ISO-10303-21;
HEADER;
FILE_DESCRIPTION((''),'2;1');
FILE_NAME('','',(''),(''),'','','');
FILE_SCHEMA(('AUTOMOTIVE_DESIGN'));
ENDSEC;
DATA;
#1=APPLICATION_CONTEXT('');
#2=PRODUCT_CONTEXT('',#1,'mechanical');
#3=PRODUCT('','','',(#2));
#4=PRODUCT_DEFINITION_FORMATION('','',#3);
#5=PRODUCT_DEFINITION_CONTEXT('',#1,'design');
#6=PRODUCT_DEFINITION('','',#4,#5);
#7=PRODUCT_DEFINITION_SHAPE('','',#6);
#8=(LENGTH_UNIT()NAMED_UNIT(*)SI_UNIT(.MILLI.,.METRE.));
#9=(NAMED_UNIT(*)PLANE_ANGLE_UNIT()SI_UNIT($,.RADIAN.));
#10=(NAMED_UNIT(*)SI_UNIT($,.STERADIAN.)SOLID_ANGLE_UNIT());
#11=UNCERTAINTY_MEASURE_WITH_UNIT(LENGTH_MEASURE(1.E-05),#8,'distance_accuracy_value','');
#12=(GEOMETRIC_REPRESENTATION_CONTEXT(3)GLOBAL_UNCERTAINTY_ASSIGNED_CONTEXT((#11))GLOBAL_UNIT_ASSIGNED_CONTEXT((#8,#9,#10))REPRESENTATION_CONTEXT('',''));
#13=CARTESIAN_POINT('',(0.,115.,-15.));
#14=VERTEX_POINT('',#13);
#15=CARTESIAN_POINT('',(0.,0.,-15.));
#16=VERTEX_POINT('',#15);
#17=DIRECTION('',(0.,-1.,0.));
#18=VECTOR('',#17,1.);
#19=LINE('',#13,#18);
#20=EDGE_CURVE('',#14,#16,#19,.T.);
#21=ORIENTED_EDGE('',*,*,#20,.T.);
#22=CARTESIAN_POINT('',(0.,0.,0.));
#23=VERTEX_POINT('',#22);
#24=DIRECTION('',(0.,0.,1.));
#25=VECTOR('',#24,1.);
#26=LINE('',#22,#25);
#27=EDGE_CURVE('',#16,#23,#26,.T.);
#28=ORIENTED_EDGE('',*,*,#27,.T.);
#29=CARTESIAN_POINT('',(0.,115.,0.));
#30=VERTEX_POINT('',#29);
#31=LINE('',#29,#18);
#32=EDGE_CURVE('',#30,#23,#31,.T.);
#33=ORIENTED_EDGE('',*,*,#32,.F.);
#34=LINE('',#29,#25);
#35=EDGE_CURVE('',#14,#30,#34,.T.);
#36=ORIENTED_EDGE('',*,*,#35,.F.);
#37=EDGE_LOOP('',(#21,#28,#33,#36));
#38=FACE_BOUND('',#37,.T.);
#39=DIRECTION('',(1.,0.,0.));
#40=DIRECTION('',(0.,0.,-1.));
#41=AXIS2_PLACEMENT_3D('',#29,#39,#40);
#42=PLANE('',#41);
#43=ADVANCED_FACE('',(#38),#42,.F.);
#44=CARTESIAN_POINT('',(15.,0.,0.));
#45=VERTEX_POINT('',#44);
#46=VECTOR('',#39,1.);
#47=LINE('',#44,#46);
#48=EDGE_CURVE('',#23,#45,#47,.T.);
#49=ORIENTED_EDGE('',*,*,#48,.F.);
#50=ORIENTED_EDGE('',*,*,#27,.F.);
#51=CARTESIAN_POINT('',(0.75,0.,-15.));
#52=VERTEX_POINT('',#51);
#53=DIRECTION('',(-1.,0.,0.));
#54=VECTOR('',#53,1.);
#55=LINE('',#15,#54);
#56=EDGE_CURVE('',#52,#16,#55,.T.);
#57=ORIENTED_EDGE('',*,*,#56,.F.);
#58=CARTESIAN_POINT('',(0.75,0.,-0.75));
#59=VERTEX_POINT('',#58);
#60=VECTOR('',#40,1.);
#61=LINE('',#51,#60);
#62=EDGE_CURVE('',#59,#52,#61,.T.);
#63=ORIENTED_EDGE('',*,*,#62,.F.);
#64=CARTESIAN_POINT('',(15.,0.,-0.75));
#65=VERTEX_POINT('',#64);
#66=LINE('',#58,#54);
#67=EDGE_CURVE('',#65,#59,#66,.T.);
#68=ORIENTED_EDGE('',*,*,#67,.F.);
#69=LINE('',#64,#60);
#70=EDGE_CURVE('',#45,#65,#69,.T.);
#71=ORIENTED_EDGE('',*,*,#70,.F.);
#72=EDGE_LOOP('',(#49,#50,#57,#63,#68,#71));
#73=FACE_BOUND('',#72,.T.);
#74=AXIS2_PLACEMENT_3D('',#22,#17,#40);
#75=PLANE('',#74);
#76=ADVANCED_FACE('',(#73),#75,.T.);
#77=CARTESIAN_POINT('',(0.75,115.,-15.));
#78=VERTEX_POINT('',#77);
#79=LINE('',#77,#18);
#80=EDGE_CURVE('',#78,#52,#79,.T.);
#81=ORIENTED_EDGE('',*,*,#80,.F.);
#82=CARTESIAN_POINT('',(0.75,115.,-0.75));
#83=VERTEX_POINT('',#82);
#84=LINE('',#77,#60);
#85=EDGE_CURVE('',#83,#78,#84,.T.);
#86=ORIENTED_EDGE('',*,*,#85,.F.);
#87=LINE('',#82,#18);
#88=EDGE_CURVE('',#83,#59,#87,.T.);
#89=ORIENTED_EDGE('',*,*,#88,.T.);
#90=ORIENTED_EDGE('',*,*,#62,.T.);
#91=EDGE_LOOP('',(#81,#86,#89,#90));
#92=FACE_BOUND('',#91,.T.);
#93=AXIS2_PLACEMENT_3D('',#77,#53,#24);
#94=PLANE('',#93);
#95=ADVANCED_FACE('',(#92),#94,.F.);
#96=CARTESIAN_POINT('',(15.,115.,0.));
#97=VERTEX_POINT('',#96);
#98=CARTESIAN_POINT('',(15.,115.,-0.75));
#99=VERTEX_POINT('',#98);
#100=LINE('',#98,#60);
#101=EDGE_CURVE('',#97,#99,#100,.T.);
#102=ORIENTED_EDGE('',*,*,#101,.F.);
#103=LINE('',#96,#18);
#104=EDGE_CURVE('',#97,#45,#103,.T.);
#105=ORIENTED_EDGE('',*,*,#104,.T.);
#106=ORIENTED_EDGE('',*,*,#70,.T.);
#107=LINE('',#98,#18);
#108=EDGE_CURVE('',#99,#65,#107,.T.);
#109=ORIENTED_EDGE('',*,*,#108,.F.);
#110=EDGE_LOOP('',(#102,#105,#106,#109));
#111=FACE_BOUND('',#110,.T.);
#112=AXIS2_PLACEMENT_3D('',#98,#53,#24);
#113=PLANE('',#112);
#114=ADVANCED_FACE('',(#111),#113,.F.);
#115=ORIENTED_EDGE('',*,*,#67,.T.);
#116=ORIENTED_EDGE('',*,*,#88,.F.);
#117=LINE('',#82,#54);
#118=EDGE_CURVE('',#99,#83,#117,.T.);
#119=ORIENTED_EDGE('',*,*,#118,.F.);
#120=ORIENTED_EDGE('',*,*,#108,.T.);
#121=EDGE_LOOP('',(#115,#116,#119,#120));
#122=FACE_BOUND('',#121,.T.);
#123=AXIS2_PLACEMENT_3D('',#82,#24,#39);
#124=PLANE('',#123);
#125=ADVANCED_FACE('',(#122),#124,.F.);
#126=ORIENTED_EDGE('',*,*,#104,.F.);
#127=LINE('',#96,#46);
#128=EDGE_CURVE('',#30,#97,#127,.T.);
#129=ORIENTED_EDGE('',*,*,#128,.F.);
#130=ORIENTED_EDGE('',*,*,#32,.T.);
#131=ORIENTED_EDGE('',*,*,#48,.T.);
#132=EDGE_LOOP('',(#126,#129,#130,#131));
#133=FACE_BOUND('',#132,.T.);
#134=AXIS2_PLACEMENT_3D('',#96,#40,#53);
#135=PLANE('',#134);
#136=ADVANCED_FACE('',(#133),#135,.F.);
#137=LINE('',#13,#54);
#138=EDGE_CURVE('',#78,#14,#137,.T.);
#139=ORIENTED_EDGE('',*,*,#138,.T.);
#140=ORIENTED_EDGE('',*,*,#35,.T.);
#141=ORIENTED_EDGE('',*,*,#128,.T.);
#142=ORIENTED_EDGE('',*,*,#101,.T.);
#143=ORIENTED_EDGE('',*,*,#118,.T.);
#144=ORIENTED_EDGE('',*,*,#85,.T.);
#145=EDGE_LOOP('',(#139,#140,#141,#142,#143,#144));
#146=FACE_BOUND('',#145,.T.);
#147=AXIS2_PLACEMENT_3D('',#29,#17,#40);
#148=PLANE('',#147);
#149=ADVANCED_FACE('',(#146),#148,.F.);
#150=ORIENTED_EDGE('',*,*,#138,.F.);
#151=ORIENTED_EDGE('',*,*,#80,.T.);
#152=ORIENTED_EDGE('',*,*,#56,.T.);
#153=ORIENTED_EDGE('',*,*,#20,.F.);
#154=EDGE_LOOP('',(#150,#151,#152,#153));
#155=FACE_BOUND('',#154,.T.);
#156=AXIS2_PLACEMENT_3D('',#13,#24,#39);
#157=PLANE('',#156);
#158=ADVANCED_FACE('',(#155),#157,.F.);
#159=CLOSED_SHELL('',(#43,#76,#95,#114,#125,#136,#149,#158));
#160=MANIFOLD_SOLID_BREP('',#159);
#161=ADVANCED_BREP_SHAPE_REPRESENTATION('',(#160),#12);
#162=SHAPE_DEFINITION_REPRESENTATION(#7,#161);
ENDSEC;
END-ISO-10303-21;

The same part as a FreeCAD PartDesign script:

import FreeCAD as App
import Part
import Sketcher

doc = App.newDocument("Part")
params = doc.addObject("Spreadsheet::Sheet", "Params")
for row, (alias, value) in enumerate([
    ("sketch1_width", "15 mm"),
    ("sketch1_width2", "14.25 mm"),
    ("pad1_length", "115 mm"),
], start=1):
    params.set(f"A{row}", alias)
    params.set(f"B{row}", "=" + value)
    params.setAlias(f"B{row}", alias)

body = doc.addObject("PartDesign::Body", "Body")

sketch1 = body.newObject("Sketcher::SketchObject", "Sketch")
sketch1.AttachmentSupport = (doc.getObject("XZ_Plane"), [""])
sketch1.MapMode = "FlatFace"
sketch1.addGeometry(Part.LineSegment(App.Vector(0, -15, 0), App.Vector(0, 0, 0)), False)
sketch1.addGeometry(Part.LineSegment(App.Vector(0, 0, 0), App.Vector(15, 0, 0)), False)
sketch1.addGeometry(Part.LineSegment(App.Vector(15, 0, 0), App.Vector(15, -0.8, 0)), False)
sketch1.addGeometry(Part.LineSegment(App.Vector(15, -0.8, 0), App.Vector(0.8, -0.8, 0)), False)
sketch1.addGeometry(Part.LineSegment(App.Vector(0.8, -0.8, 0), App.Vector(0.8, -15, 0)), False)
sketch1.addGeometry(Part.LineSegment(App.Vector(0.8, -15, 0), App.Vector(0, -15, 0)), False)
sketch1.addConstraint(Sketcher.Constraint("Coincident", 0, 2, 1, 1))
sketch1.addConstraint(Sketcher.Constraint("Coincident", 1, 2, 2, 1))
sketch1.addConstraint(Sketcher.Constraint("Coincident", 2, 2, 3, 1))
sketch1.addConstraint(Sketcher.Constraint("Coincident", 3, 2, 4, 1))
sketch1.addConstraint(Sketcher.Constraint("Coincident", 4, 2, 5, 1))
sketch1.addConstraint(Sketcher.Constraint("Coincident", 5, 2, 0, 1))
sketch1.addConstraint(Sketcher.Constraint("Vertical", 0))
sketch1.addConstraint(Sketcher.Constraint("Horizontal", 1))
sketch1.addConstraint(Sketcher.Constraint("Vertical", 2))
sketch1.addConstraint(Sketcher.Constraint("Horizontal", 3))
sketch1.addConstraint(Sketcher.Constraint("Vertical", 4))
sketch1.addConstraint(Sketcher.Constraint("Horizontal", 5))
sketch1.addConstraint(Sketcher.Constraint("Coincident", 0, 2, -1, 1))
sketch1.addConstraint(Sketcher.Constraint("Equal", 1, 0))
sketch1.addConstraint(Sketcher.Constraint("Equal", 5, 2))
sketch1.addConstraint(Sketcher.Constraint("DistanceX", 1, 1, 1, 2, 15.0))
sketch1.addConstraint(Sketcher.Constraint("DistanceX", 3, 2, 3, 1, 14.25))
sketch1.setExpression("Constraints[15]", "Params.sketch1_width")
sketch1.setExpression("Constraints[16]", "Params.sketch1_width2")
pad1 = body.newObject("PartDesign::Pad", "Pad")
pad1.Profile = sketch1
pad1.setExpression("Length", "Params.pad1_length")
pad1.Reversed = True

doc.recompute()
